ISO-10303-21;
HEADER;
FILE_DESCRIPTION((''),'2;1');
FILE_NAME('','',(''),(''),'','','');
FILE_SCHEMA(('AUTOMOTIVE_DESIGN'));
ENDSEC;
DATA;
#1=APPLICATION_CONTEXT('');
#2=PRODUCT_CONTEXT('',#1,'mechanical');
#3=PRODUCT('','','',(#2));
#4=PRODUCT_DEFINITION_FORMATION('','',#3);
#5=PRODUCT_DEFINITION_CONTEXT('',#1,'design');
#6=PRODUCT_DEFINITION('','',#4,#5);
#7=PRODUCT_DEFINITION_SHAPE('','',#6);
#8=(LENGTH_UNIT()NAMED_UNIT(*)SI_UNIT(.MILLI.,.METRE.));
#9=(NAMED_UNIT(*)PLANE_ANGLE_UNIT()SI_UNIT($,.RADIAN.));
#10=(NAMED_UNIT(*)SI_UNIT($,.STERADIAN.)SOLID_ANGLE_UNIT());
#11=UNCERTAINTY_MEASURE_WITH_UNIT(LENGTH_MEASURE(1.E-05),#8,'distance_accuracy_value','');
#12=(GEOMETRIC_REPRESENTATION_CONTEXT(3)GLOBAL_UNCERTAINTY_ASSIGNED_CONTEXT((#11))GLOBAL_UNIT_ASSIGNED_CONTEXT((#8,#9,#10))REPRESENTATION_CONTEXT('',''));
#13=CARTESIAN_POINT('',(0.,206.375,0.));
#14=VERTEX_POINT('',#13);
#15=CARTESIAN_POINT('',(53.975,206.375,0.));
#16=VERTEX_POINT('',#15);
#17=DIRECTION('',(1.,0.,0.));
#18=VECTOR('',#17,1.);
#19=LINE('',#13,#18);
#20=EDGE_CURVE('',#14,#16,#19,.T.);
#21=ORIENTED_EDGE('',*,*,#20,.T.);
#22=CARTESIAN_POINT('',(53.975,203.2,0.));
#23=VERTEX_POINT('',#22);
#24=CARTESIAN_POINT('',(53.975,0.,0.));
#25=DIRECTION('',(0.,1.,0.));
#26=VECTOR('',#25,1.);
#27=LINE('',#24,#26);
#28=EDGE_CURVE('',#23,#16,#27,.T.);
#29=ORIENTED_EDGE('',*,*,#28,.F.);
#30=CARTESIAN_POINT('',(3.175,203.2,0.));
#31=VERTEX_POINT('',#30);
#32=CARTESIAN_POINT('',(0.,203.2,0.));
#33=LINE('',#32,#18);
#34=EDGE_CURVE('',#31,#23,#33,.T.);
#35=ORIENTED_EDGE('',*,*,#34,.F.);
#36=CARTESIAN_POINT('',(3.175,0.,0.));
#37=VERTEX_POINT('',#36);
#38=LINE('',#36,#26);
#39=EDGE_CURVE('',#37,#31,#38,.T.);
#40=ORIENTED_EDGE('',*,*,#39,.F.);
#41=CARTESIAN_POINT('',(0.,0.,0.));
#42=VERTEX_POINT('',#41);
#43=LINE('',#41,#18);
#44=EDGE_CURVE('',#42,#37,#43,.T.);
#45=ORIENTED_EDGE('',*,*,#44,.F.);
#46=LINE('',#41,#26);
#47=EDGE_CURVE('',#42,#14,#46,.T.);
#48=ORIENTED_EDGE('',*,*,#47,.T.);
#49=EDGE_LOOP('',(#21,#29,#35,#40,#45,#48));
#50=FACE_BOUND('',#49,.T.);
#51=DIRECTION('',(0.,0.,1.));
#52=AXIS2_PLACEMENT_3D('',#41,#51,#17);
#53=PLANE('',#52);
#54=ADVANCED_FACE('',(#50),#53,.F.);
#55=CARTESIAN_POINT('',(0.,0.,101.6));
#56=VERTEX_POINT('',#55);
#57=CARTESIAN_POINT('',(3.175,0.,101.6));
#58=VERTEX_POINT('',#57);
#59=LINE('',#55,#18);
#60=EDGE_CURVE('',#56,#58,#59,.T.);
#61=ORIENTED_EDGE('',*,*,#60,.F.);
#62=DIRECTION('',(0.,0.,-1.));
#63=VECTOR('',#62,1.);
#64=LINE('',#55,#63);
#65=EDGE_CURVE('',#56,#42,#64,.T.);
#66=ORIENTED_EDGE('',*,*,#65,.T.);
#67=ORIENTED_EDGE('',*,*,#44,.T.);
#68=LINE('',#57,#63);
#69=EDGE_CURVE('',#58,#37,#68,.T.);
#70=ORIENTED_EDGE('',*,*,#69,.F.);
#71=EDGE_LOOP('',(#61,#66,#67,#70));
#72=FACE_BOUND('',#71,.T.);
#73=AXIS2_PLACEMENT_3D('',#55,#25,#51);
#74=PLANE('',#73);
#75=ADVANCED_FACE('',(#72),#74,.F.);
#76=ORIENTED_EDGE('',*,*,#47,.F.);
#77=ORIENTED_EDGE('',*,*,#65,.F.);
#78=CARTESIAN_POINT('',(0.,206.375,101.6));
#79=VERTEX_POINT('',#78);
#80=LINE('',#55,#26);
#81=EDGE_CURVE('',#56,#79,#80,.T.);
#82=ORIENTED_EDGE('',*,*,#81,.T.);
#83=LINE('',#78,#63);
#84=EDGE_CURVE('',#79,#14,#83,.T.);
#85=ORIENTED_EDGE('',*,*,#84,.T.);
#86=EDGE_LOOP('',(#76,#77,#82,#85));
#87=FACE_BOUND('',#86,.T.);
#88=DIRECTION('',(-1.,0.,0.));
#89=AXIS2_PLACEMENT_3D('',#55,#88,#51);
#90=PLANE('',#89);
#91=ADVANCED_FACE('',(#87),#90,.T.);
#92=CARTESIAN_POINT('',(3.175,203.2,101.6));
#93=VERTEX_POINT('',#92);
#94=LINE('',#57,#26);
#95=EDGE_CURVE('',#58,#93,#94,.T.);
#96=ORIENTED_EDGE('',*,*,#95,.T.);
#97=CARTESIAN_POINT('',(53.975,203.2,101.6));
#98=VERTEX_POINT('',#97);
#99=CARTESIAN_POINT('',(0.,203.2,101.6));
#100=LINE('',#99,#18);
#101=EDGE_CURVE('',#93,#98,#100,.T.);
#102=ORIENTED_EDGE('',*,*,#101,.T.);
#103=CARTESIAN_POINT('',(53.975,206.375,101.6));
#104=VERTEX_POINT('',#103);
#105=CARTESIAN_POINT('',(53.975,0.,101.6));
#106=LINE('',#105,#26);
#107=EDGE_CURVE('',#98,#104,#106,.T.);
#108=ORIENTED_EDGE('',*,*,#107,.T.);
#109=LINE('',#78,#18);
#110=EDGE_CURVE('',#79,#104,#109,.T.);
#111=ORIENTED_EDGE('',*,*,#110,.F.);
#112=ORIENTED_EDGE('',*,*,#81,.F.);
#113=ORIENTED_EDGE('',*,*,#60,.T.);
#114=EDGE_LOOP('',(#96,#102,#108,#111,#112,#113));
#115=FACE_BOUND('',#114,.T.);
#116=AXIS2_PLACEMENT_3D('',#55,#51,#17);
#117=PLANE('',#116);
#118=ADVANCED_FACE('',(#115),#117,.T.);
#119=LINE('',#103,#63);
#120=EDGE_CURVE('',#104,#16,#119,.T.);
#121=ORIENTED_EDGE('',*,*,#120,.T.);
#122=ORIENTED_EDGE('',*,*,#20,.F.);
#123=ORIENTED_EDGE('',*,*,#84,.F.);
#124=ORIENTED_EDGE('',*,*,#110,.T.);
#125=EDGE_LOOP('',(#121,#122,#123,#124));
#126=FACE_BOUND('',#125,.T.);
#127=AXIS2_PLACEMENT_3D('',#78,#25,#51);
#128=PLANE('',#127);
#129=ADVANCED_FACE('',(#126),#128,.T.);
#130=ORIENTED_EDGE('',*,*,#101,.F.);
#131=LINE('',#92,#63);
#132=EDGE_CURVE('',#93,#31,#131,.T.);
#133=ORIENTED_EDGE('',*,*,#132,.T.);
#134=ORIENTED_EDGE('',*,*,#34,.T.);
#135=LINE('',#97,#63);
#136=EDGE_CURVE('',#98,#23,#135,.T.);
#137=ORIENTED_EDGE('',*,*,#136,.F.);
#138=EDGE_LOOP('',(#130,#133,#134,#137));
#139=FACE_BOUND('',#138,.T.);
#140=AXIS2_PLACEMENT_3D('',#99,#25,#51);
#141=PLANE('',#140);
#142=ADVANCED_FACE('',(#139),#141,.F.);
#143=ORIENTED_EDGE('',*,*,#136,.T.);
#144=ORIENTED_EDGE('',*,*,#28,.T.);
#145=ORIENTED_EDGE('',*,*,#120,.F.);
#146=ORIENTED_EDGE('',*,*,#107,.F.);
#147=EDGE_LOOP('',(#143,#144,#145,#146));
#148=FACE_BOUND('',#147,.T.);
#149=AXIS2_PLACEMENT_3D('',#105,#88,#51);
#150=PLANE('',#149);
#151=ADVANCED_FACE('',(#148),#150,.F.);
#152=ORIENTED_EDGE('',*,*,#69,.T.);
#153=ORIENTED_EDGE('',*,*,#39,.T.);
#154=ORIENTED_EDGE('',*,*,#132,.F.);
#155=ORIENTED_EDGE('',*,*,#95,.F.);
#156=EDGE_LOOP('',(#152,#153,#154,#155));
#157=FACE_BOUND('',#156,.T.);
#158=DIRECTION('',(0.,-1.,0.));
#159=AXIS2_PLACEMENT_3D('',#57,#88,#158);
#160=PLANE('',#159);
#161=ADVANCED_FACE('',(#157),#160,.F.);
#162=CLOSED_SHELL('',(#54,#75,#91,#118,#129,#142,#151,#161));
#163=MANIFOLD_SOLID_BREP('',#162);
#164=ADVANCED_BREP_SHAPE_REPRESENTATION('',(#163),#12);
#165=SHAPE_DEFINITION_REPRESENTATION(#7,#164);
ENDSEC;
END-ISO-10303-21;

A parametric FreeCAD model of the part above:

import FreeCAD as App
import Part
import Sketcher
Q = App.Units.Quantity

doc = App.newDocument("Part")
params = doc.addObject("Spreadsheet::Sheet", "Params")
for row, (alias, value) in enumerate([
    ("sketch1_width", "2 in"),
    ("sketch1_height", "8 in"),
    ("sketch1_width2", "0.125 in"),
    ("pad1_length", "4 in"),
], start=1):
    params.set(f"A{row}", alias)
    params.set(f"B{row}", "=" + value)
    params.setAlias(f"B{row}", alias)

body = doc.addObject("PartDesign::Body", "Body")

sketch1 = body.newObject("Sketcher::SketchObject", "Sketch")
sketch1.AttachmentSupport = (doc.getObject("XY_Plane"), [""])
sketch1.MapMode = "FlatFace"
sketch1.addGeometry(Part.LineSegment(App.Vector(0, 206.4, 0), App.Vector(0, 0, 0)), False)
sketch1.addGeometry(Part.LineSegment(App.Vector(0, 0, 0), App.Vector(3.2, 0, 0)), False)
sketch1.addGeometry(Part.LineSegment(App.Vector(3.2, 0, 0), App.Vector(3.2, 203.2, 0)), False)
sketch1.addGeometry(Part.LineSegment(App.Vector(3.2, 203.2, 0), App.Vector(54, 203.2, 0)), False)
sketch1.addGeometry(Part.LineSegment(App.Vector(54, 203.2, 0), App.Vector(54, 206.4, 0)), False)
sketch1.addGeometry(Part.LineSegment(App.Vector(54, 206.4, 0), App.Vector(0, 206.4, 0)), False)
sketch1.addConstraint(Sketcher.Constraint("Coincident", 0, 2, 1, 1))
sketch1.addConstraint(Sketcher.Constraint("Coincident", 1, 2, 2, 1))
sketch1.addConstraint(Sketcher.Constraint("Coincident", 2, 2, 3, 1))
sketch1.addConstraint(Sketcher.Constraint("Coincident", 3, 2, 4, 1))
sketch1.addConstraint(Sketcher.Constraint("Coincident", 4, 2, 5, 1))
sketch1.addConstraint(Sketcher.Constraint("Coincident", 5, 2, 0, 1))
sketch1.addConstraint(Sketcher.Constraint("Vertical", 0))
sketch1.addConstraint(Sketcher.Constraint("Horizontal", 1))
sketch1.addConstraint(Sketcher.Constraint("Vertical", 2))
sketch1.addConstraint(Sketcher.Constraint("Horizontal", 3))
sketch1.addConstraint(Sketcher.Constraint("Vertical", 4))
sketch1.addConstraint(Sketcher.Constraint("Horizontal", 5))
sketch1.addConstraint(Sketcher.Constraint("Coincident", 0, 2, -1, 1))
sketch1.addConstraint(Sketcher.Constraint("Equal", 1, 4))
sketch1.addConstraint(Sketcher.Constraint("DistanceX", 3, 1, 3, 2, Q("2 in")))
sketch1.addConstraint(Sketcher.Constraint("DistanceY", 2, 1, 2, 2, Q("8 in")))
sketch1.addConstraint(Sketcher.Constraint("DistanceX", 1, 1, 1, 2, Q("0.125 in")))
sketch1.setExpression("Constraints[14]", "Params.sketch1_width")
sketch1.setExpression("Constraints[15]", "Params.sketch1_height")
sketch1.setExpression("Constraints[16]", "Params.sketch1_width2")
pad1 = body.newObject("PartDesign::Pad", "Pad")
pad1.Profile = sketch1
pad1.setExpression("Length", "Params.pad1_length")

doc.recompute()
